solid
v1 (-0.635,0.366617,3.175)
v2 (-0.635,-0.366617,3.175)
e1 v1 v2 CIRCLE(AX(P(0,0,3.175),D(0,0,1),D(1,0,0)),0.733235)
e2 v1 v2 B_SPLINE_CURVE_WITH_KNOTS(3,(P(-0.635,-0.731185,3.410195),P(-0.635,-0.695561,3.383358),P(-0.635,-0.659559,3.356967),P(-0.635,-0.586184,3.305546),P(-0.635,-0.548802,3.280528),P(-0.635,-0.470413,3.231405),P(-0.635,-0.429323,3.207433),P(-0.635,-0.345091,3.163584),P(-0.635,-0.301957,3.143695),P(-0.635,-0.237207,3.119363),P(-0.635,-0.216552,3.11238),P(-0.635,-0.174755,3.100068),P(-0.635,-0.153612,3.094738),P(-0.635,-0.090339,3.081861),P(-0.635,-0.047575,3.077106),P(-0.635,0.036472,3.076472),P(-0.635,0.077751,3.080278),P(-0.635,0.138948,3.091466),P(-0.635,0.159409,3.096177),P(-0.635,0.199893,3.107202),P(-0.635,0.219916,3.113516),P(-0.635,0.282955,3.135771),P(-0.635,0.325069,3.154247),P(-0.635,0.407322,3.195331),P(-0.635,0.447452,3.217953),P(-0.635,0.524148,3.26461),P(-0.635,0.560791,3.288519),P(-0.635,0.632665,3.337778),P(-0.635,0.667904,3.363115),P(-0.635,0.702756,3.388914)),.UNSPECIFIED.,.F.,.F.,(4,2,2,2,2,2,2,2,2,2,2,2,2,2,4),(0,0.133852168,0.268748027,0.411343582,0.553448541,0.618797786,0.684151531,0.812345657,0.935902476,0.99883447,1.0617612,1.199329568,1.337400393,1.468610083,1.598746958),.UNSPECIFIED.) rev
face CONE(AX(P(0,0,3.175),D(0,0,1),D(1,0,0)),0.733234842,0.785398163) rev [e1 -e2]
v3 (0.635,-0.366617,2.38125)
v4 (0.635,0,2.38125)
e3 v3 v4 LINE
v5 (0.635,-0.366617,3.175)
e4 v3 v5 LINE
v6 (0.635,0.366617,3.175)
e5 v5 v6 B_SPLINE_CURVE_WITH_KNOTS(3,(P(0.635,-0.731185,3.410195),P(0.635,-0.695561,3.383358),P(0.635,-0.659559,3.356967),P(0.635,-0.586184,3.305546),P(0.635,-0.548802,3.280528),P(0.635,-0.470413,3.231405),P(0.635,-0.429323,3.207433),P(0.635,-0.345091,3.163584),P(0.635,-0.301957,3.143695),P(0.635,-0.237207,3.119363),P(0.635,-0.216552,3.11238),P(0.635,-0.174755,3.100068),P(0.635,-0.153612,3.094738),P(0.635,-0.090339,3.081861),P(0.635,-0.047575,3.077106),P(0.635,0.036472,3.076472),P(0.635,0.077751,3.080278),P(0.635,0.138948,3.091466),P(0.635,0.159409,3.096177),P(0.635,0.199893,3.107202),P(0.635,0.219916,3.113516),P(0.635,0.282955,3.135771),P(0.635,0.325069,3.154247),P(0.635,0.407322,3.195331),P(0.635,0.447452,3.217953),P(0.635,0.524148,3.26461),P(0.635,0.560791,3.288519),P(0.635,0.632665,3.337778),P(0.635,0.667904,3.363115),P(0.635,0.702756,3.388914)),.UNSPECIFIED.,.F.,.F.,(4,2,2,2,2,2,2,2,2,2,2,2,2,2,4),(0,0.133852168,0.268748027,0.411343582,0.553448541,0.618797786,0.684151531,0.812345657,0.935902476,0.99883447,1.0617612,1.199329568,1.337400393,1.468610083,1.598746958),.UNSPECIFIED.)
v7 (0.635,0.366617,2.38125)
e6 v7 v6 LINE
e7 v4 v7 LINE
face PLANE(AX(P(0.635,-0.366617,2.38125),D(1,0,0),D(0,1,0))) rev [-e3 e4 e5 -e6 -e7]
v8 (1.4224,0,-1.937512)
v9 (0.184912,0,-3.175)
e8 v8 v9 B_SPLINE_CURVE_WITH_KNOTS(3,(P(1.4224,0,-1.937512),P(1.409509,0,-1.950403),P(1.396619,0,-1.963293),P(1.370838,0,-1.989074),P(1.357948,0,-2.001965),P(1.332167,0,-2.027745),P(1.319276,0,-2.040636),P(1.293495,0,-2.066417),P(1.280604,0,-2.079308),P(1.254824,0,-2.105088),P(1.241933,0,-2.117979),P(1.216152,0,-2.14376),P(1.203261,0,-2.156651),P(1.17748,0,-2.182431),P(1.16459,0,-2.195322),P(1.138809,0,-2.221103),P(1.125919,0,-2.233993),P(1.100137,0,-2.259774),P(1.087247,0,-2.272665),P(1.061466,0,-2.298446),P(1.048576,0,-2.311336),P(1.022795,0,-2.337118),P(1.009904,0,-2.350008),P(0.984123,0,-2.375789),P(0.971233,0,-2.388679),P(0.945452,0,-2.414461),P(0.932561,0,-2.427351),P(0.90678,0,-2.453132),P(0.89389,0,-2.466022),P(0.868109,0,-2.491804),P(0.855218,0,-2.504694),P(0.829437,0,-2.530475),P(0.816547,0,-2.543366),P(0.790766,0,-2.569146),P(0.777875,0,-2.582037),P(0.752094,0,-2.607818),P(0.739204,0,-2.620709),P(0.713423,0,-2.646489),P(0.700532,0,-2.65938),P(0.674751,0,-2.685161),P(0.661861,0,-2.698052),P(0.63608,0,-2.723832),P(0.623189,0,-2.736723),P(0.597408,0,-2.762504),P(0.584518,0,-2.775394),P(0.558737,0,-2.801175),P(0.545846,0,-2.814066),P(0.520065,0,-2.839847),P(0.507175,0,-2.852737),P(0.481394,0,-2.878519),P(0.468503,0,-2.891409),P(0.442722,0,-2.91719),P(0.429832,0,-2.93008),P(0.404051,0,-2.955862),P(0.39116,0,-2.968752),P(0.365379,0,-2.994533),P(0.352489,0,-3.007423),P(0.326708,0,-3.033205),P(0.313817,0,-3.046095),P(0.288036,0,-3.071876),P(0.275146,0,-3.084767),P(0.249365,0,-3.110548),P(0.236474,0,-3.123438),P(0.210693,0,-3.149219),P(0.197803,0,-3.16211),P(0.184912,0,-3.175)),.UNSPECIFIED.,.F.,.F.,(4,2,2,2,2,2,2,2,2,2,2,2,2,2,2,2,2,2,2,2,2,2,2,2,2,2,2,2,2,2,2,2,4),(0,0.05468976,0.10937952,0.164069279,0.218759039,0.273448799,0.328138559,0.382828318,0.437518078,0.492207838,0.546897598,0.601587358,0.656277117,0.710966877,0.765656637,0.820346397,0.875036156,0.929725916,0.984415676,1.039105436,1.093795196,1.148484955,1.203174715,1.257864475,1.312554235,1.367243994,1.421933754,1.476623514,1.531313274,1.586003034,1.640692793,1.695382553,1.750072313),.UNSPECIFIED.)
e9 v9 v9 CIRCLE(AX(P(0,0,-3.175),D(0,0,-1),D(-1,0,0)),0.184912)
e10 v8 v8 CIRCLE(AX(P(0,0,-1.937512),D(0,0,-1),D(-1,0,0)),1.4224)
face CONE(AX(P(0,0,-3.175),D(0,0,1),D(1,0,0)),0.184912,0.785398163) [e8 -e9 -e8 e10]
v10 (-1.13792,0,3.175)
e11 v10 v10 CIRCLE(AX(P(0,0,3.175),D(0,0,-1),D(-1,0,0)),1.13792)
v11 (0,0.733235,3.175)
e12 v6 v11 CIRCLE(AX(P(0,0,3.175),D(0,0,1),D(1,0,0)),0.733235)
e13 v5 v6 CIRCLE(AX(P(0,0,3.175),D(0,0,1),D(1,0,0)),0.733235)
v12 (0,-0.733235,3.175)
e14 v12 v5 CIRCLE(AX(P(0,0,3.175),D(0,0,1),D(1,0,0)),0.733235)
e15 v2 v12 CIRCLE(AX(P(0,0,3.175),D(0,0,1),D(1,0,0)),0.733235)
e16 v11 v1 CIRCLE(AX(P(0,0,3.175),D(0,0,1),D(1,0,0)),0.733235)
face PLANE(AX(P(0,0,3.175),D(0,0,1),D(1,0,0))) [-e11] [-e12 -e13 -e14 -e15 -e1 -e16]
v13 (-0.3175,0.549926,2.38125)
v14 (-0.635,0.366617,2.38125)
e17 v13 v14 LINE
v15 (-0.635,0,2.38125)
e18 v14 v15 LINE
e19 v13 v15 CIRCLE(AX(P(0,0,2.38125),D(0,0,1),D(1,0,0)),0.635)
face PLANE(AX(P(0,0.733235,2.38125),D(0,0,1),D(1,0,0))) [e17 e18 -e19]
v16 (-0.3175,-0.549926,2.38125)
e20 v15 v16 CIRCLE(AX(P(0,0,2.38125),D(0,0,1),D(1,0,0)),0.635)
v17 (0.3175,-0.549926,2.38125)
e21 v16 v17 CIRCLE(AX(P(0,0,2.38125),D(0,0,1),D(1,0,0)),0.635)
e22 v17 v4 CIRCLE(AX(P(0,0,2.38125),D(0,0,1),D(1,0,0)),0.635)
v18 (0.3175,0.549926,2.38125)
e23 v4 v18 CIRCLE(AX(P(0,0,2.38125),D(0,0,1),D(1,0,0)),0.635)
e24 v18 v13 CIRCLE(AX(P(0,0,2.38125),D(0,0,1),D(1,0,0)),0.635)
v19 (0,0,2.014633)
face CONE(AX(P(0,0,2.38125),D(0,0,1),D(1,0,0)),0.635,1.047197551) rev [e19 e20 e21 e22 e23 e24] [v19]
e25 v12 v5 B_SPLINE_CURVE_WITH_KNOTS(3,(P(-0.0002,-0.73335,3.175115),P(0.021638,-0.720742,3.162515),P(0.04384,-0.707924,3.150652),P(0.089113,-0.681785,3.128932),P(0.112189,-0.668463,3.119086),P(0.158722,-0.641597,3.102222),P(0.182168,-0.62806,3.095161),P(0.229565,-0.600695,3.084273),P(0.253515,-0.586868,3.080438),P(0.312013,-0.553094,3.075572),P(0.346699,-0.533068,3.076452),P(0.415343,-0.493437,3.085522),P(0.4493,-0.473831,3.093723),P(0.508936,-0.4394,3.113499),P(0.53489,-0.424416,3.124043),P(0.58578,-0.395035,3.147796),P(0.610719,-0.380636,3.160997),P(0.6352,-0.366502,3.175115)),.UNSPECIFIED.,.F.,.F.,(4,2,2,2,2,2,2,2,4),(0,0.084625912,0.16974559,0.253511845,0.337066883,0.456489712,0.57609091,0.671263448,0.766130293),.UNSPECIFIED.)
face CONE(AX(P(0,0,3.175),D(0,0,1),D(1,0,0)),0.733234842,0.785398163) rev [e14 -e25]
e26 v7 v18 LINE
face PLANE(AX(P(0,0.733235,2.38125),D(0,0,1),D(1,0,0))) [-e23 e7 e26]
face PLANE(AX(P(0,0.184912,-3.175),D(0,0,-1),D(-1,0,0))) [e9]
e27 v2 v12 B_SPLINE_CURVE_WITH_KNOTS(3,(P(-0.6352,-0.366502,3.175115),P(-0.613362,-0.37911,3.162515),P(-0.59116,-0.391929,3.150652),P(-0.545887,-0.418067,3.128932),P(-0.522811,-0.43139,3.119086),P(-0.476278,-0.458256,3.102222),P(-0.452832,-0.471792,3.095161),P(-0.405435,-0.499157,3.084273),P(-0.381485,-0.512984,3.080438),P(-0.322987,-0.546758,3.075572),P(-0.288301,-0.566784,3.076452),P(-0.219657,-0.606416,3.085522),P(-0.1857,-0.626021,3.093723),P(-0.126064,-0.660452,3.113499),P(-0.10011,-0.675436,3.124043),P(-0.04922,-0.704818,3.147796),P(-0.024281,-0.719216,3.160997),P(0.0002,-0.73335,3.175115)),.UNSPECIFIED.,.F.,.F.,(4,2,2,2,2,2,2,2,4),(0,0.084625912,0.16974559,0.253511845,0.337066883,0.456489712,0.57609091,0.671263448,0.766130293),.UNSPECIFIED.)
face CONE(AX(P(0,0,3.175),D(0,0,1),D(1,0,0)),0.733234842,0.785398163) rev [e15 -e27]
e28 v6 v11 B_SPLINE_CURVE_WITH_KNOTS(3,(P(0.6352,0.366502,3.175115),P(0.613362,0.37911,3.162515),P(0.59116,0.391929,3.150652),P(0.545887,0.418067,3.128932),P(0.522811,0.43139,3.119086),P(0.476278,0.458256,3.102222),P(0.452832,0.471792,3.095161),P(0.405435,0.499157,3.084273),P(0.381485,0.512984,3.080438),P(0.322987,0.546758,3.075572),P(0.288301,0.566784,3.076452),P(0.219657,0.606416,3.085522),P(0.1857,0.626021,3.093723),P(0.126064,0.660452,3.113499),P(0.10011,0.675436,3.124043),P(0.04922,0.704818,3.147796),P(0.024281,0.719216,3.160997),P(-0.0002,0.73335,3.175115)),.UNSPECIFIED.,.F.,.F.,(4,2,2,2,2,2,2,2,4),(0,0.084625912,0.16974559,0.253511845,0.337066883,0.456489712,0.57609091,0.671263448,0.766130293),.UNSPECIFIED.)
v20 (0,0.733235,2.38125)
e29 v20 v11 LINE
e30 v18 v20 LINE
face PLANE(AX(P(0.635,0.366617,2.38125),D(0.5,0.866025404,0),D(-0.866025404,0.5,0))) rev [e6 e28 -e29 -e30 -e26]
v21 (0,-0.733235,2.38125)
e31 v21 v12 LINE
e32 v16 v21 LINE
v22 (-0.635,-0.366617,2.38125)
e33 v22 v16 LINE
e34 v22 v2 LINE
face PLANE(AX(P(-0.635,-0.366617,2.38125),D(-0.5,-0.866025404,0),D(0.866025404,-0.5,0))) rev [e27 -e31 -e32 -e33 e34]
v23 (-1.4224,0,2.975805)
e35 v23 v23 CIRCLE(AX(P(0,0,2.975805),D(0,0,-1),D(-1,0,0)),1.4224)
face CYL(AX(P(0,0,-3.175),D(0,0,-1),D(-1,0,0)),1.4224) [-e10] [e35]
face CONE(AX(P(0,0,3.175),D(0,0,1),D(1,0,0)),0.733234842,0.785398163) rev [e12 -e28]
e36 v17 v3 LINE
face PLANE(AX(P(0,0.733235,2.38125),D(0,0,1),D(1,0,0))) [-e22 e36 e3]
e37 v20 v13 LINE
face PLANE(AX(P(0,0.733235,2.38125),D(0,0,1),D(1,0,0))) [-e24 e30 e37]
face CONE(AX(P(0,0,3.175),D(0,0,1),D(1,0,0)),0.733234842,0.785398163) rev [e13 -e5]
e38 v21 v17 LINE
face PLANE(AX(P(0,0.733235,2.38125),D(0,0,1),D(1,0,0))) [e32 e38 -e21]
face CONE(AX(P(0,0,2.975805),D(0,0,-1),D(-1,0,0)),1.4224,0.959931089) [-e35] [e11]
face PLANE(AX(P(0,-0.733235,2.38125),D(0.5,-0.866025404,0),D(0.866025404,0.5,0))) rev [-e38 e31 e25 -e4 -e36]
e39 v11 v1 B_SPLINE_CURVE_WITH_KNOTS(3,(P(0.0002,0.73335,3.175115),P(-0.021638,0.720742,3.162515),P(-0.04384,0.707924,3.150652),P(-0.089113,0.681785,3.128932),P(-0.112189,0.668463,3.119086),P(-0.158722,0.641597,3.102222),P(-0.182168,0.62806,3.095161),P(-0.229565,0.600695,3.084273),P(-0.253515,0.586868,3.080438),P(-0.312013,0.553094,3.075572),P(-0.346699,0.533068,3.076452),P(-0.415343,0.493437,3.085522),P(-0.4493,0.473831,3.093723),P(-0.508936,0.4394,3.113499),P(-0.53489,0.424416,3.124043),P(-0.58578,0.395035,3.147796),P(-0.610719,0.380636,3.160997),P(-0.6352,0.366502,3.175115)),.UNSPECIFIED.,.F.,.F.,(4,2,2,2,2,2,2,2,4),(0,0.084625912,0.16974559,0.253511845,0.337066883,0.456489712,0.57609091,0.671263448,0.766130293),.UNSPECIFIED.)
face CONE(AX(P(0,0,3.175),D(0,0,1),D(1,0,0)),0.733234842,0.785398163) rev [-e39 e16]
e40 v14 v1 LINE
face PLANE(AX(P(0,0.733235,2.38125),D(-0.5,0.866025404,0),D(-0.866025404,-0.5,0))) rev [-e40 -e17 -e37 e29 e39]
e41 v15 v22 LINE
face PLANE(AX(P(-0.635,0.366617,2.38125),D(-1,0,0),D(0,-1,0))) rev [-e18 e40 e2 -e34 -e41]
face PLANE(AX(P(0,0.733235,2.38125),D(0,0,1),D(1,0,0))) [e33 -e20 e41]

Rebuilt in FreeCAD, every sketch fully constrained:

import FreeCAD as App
import Part
import Sketcher
Q = App.Units.Quantity

doc = App.newDocument("Part")
body = doc.addObject("PartDesign::Body", "Body")

# Sketch on YZ plane
sketch1 = body.newObject("Sketcher::SketchObject", "Sketch")
sketch1.AttachmentSupport = (doc.getObject("YZ_Plane"), [""])
sketch1.MapMode = "FlatFace"
sketch1.addGeometry([
    Part.LineSegment(App.Vector(1.14, 3.17, 0), App.Vector(0, 3.17, 0)),  # 0
    Part.LineSegment(App.Vector(0, 3.17, 0), App.Vector(0, -3.17, 0)),  # 1
    Part.LineSegment(App.Vector(0, -3.17, 0), App.Vector(0.18, -3.17, 0)),  # 2
    Part.LineSegment(App.Vector(0.18, -3.17, 0), App.Vector(1.42, -1.94, 0)),  # 3
    Part.LineSegment(App.Vector(1.42, -1.94, 0), App.Vector(1.42, 2.98, 0)),  # 4
    Part.LineSegment(App.Vector(1.42, 2.98, 0), App.Vector(1.14, 3.17, 0)),  # 5
], False)
sketch1.addConstraint([
    Sketcher.Constraint("Coincident", 0, 2, 1, 1),
    Sketcher.Constraint("Coincident", 1, 2, 2, 1),
    Sketcher.Constraint("Coincident", 2, 2, 3, 1),
    Sketcher.Constraint("Coincident", 3, 2, 4, 1),
    Sketcher.Constraint("Coincident", 4, 2, 5, 1),
    Sketcher.Constraint("Coincident", 5, 2, 0, 1),
    Sketcher.Constraint("Horizontal", 0),
    Sketcher.Constraint("Vertical", 1),
    Sketcher.Constraint("Horizontal", 2),
    Sketcher.Constraint("Vertical", 4),
    Sketcher.Constraint("Symmetric", 0, 2, 1, 2, -1, 1),
    Sketcher.Constraint("Angle", 3, Q("45 deg")),
    Sketcher.Constraint("Angle", 5, Q("145 deg")),
    Sketcher.Constraint("DistanceY", 1, 2, 1, 1, Q("0.25 in")),
    Sketcher.Constraint("DistanceX", 0, 2, 0, 1, Q("0.0448 in")),
    Sketcher.Constraint("DistanceX", -1, 1, 3, 2, Q("0.056 in")),
    Sketcher.Constraint("DistanceX", 2, 1, 2, 2, Q("0.184912 mm")),
])
revolution = body.newObject("PartDesign::Revolution", "Revolution")
revolution.Profile = sketch1
revolution.ReferenceAxis = (sketch1, ["V_Axis"])
revolution.Angle = 360

# Sketch on XY plane
sketch2 = body.newObject("Sketcher::SketchObject", "Sketch001")
sketch2.AttachmentSupport = (doc.getObject("XY_Plane"), [""])
sketch2.MapMode = "FlatFace"
sketch2.AttachmentOffset = App.Placement(App.Vector(0, 0, 0.125 * 25.4), App.Rotation())
sketch2.addGeometry([
    Part.LineSegment(App.Vector(0, 0.7, 0), App.Vector(-0.6, 0.4, 0)),  # 0
    Part.LineSegment(App.Vector(-0.6, 0.4, 0), App.Vector(-0.6, -0.4, 0)),  # 1
    Part.LineSegment(App.Vector(-0.6, -0.4, 0), App.Vector(0, -0.7, 0)),  # 2
    Part.LineSegment(App.Vector(0, -0.7, 0), App.Vector(0.6, -0.4, 0)),  # 3
    Part.LineSegment(App.Vector(0.6, -0.4, 0), App.Vector(0.6, 0.4, 0)),  # 4
    Part.LineSegment(App.Vector(0.6, 0.4, 0), App.Vector(0, 0.7, 0)),  # 5
], False)
sketch2.addConstraint([
    Sketcher.Constraint("Coincident", 0, 2, 1, 1),
    Sketcher.Constraint("Coincident", 1, 2, 2, 1),
    Sketcher.Constraint("Coincident", 2, 2, 3, 1),
    Sketcher.Constraint("Coincident", 3, 2, 4, 1),
    Sketcher.Constraint("Coincident", 4, 2, 5, 1),
    Sketcher.Constraint("Coincident", 5, 2, 0, 1),
    Sketcher.Constraint("Vertical", 1),
    Sketcher.Constraint("Vertical", 4),
    Sketcher.Constraint("Symmetric", 0, 2, 3, 2, -1, 1),
    Sketcher.Constraint("Symmetric", 2, 2, 5, 2, -1, 1),
    Sketcher.Constraint("PointOnObject", 2, 2, -2),
    Sketcher.Constraint("Parallel", 2, 5),
    Sketcher.Constraint("Horizontal", 1, 2, 3, 2),
    Sketcher.Constraint("Angle", 0, Q("-150 deg")),
    Sketcher.Constraint("DistanceX", 1, 2, 3, 2, Q("0.05 in")),
    Sketcher.Constraint("DistanceY", 1, 2, 1, 1, Q("0.733235 mm")),
])
pocket1 = body.newObject("PartDesign::Pocket", "Pocket")
pocket1.Profile = sketch2
pocket1.Length = Q("0.03125 in")

# Sketch on YZ plane
sketch3 = body.newObject("Sketcher::SketchObject", "Sketch002")
sketch3.AttachmentSupport = (doc.getObject("YZ_Plane"), [""])
sketch3.MapMode = "FlatFace"
sketch3.addGeometry([
    Part.LineSegment(App.Vector(0, 3.2, 0), App.Vector(-0.7, 3.2, 0)),
    Part.LineSegment(App.Vector(-0.7, 3.2, 0), App.Vector(0, 2.4, 0)),
    Part.LineSegment(App.Vector(0, 2.4, 0), App.Vector(0, 3.2, 0)),
], False)
sketch3.addConstraint([
    Sketcher.Constraint("Coincident", 0, 2, 1, 1),
    Sketcher.Constraint("Coincident", 1, 2, 2, 1),
    Sketcher.Constraint("Coincident", 2, 2, 0, 1),
    Sketcher.Constraint("Horizontal", 0),
    Sketcher.Constraint("Vertical", 2),
    Sketcher.Constraint("PointOnObject", 1, 2, -2),
    Sketcher.Constraint("Equal", 0, 2),
    Sketcher.Constraint("DistanceY", -1, 1, 0, 2, Q("0.125 in")),
    Sketcher.Constraint("Distance", 1, Q("1.036951 mm")),
])
groove = body.newObject("PartDesign::Groove", "Groove")
groove.Profile = sketch3
groove.ReferenceAxis = (sketch3, ["V_Axis"])
groove.Angle = 360

# Sketch on YZ plane
sketch4 = body.newObject("Sketcher::SketchObject", "Sketch003")
sketch4.AttachmentSupport = (doc.getObject("YZ_Plane"), [""])
sketch4.MapMode = "FlatFace"
sketch4.addGeometry([
    Part.LineSegment(App.Vector(0, 2.38, 0), App.Vector(-0.64, 2.38, 0)),
    Part.LineSegment(App.Vector(-0.64, 2.38, 0), App.Vector(0, 2.01, 0)),
    Part.LineSegment(App.Vector(0, 2.01, 0), App.Vector(0, 2.38, 0)),
], False)
sketch4.addConstraint([
    Sketcher.Constraint("Coincident", 0, 2, 1, 1),
    Sketcher.Constraint("Coincident", 1, 2, 2, 1),
    Sketcher.Constraint("Coincident", 2, 2, 0, 1),
    Sketcher.Constraint("Horizontal", 0),
    Sketcher.Constraint("Vertical", 2),
    Sketcher.Constraint("PointOnObject", 1, 2, -2),
    Sketcher.Constraint("Angle", 1, Q("-30 deg")),
    Sketcher.Constraint("DistanceX", 0, 2, 0, 1, Q("0.025 in")),
    Sketcher.Constraint("DistanceY", -1, 1, 0, 2, Q("0.09375 in")),
])
groove2 = body.newObject("PartDesign::Groove", "Groove001")
groove2.Profile = sketch4
groove2.ReferenceAxis = (sketch4, ["V_Axis"])
groove2.Angle = 360

doc.recompute()
